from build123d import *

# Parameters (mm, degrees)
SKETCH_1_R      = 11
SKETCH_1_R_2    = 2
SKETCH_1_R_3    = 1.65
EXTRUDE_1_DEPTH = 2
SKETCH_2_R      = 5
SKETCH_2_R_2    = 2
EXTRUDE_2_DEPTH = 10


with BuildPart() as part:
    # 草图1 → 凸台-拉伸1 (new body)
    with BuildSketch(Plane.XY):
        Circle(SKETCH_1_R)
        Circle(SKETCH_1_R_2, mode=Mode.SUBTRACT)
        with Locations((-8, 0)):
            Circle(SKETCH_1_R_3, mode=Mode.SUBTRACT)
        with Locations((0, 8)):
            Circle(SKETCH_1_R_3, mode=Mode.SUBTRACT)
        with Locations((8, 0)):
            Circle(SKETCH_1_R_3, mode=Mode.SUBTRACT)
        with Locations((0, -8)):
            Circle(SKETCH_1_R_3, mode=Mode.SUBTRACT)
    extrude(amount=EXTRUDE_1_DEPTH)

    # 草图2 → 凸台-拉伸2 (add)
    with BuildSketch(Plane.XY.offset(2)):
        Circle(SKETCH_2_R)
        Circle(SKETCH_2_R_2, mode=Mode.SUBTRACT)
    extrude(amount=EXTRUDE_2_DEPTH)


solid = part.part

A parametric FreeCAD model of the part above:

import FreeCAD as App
import Part
import Sketcher

V = App.Vector

doc = App.newDocument("Part")
params = doc.addObject("Spreadsheet::Sheet", "Params")
for row, (alias, value) in enumerate([
    ("sketch1_diameter", "22 mm"),
    ("sketch1_diameter2", "4 mm"),
    ("sketch1_diameter3", "3.3 mm"),
    ("pad1_length", "2 mm"),
    ("sketch2_diameter", "10 mm"),
    ("sketch2_diameter2", "4 mm"),
    ("pad2_length", "10 mm"),
], start=1):
    params.set(f"A{row}", alias)
    params.set(f"B{row}", "=" + value)
    params.setAlias(f"B{row}", alias)

body = doc.addObject("PartDesign::Body", "Body")

# Sketch on XY plane
sketch1 = body.newObject("Sketcher::SketchObject", "Sketch")
sketch1.AttachmentSupport = (doc.getObject("XY_Plane"), [""])
sketch1.MapMode = "FlatFace"
sketch1.addGeometry([
    Part.Circle(V(0, 0, 0), V(0, 0, 1), 11),  # 0
    Part.Circle(V(0, -8, 0), V(0, 0, 1), 1.65),  # 1
    Part.Circle(V(-8, 0, 0), V(0, 0, 1), 1.65),  # 2
    Part.Circle(V(0, 0, 0), V(0, 0, 1), 2),  # 3
    Part.Circle(V(8, 0, 0), V(0, 0, 1), 1.65),  # 4
    Part.Circle(V(0, 8, 0), V(0, 0, 1), 1.65),  # 5
], False)
sketch1.addConstraint([
    Sketcher.Constraint("Coincident", 0, 3, -1, 1),
    Sketcher.Constraint("Coincident", 3, 3, -1, 1),
    Sketcher.Constraint("Equal", 1, 2),
    Sketcher.Constraint("Equal", 2, 4),
    Sketcher.Constraint("Equal", 4, 5),
    Sketcher.Constraint("Symmetric", 2, 3, 4, 3, -1, 1),
    Sketcher.Constraint("Symmetric", 1, 3, 5, 3, -1, 1),
    Sketcher.Constraint("PointOnObject", 1, 3, -2),
    Sketcher.Constraint("PointOnObject", 2, 3, -1),
    Sketcher.Constraint("Diameter", 0, 22.0),
    Sketcher.Constraint("Diameter", 3, 4.0),
    Sketcher.Constraint("Diameter", 1, 3.3),
    Sketcher.Constraint("DistanceY", 1, 3, -1, 1, 8.0),
    Sketcher.Constraint("DistanceX", 2, 3, -1, 1, 8.0),
])
sketch1.setExpression("Constraints[9]", "Params.sketch1_diameter")
sketch1.setExpression("Constraints[10]", "Params.sketch1_diameter2")
sketch1.setExpression("Constraints[11]", "Params.sketch1_diameter3")
pad1 = body.newObject("PartDesign::Pad", "Pad")
pad1.Profile = sketch1
pad1.setExpression("Length", "Params.pad1_length")

# Sketch on XY plane
sketch2 = body.newObject("Sketcher::SketchObject", "Sketch001")
sketch2.AttachmentSupport = (doc.getObject("XY_Plane"), [""])
sketch2.MapMode = "FlatFace"
sketch2.AttachmentOffset = App.Placement(V(0, 0, 2), App.Rotation())
sketch2.addGeometry([
    Part.Circle(V(0, 0, 0), V(0, 0, 1), 5),
    Part.Circle(V(0, 0, 0), V(0, 0, 1), 2),
], False)
sketch2.addConstraint([
    Sketcher.Constraint("Coincident", 0, 3, -1, 1),
    Sketcher.Constraint("Coincident", 1, 3, -1, 1),
    Sketcher.Constraint("Diameter", 0, 10.0),
    Sketcher.Constraint("Diameter", 1, 4.0),
])
sketch2.setExpression("Constraints[2]", "Params.sketch2_diameter")
sketch2.setExpression("Constraints[3]", "Params.sketch2_diameter2")
pad2 = body.newObject("PartDesign::Pad", "Pad001")
pad2.Profile = sketch2
pad2.setExpression("Length", "Params.pad2_length")

doc.recompute()
